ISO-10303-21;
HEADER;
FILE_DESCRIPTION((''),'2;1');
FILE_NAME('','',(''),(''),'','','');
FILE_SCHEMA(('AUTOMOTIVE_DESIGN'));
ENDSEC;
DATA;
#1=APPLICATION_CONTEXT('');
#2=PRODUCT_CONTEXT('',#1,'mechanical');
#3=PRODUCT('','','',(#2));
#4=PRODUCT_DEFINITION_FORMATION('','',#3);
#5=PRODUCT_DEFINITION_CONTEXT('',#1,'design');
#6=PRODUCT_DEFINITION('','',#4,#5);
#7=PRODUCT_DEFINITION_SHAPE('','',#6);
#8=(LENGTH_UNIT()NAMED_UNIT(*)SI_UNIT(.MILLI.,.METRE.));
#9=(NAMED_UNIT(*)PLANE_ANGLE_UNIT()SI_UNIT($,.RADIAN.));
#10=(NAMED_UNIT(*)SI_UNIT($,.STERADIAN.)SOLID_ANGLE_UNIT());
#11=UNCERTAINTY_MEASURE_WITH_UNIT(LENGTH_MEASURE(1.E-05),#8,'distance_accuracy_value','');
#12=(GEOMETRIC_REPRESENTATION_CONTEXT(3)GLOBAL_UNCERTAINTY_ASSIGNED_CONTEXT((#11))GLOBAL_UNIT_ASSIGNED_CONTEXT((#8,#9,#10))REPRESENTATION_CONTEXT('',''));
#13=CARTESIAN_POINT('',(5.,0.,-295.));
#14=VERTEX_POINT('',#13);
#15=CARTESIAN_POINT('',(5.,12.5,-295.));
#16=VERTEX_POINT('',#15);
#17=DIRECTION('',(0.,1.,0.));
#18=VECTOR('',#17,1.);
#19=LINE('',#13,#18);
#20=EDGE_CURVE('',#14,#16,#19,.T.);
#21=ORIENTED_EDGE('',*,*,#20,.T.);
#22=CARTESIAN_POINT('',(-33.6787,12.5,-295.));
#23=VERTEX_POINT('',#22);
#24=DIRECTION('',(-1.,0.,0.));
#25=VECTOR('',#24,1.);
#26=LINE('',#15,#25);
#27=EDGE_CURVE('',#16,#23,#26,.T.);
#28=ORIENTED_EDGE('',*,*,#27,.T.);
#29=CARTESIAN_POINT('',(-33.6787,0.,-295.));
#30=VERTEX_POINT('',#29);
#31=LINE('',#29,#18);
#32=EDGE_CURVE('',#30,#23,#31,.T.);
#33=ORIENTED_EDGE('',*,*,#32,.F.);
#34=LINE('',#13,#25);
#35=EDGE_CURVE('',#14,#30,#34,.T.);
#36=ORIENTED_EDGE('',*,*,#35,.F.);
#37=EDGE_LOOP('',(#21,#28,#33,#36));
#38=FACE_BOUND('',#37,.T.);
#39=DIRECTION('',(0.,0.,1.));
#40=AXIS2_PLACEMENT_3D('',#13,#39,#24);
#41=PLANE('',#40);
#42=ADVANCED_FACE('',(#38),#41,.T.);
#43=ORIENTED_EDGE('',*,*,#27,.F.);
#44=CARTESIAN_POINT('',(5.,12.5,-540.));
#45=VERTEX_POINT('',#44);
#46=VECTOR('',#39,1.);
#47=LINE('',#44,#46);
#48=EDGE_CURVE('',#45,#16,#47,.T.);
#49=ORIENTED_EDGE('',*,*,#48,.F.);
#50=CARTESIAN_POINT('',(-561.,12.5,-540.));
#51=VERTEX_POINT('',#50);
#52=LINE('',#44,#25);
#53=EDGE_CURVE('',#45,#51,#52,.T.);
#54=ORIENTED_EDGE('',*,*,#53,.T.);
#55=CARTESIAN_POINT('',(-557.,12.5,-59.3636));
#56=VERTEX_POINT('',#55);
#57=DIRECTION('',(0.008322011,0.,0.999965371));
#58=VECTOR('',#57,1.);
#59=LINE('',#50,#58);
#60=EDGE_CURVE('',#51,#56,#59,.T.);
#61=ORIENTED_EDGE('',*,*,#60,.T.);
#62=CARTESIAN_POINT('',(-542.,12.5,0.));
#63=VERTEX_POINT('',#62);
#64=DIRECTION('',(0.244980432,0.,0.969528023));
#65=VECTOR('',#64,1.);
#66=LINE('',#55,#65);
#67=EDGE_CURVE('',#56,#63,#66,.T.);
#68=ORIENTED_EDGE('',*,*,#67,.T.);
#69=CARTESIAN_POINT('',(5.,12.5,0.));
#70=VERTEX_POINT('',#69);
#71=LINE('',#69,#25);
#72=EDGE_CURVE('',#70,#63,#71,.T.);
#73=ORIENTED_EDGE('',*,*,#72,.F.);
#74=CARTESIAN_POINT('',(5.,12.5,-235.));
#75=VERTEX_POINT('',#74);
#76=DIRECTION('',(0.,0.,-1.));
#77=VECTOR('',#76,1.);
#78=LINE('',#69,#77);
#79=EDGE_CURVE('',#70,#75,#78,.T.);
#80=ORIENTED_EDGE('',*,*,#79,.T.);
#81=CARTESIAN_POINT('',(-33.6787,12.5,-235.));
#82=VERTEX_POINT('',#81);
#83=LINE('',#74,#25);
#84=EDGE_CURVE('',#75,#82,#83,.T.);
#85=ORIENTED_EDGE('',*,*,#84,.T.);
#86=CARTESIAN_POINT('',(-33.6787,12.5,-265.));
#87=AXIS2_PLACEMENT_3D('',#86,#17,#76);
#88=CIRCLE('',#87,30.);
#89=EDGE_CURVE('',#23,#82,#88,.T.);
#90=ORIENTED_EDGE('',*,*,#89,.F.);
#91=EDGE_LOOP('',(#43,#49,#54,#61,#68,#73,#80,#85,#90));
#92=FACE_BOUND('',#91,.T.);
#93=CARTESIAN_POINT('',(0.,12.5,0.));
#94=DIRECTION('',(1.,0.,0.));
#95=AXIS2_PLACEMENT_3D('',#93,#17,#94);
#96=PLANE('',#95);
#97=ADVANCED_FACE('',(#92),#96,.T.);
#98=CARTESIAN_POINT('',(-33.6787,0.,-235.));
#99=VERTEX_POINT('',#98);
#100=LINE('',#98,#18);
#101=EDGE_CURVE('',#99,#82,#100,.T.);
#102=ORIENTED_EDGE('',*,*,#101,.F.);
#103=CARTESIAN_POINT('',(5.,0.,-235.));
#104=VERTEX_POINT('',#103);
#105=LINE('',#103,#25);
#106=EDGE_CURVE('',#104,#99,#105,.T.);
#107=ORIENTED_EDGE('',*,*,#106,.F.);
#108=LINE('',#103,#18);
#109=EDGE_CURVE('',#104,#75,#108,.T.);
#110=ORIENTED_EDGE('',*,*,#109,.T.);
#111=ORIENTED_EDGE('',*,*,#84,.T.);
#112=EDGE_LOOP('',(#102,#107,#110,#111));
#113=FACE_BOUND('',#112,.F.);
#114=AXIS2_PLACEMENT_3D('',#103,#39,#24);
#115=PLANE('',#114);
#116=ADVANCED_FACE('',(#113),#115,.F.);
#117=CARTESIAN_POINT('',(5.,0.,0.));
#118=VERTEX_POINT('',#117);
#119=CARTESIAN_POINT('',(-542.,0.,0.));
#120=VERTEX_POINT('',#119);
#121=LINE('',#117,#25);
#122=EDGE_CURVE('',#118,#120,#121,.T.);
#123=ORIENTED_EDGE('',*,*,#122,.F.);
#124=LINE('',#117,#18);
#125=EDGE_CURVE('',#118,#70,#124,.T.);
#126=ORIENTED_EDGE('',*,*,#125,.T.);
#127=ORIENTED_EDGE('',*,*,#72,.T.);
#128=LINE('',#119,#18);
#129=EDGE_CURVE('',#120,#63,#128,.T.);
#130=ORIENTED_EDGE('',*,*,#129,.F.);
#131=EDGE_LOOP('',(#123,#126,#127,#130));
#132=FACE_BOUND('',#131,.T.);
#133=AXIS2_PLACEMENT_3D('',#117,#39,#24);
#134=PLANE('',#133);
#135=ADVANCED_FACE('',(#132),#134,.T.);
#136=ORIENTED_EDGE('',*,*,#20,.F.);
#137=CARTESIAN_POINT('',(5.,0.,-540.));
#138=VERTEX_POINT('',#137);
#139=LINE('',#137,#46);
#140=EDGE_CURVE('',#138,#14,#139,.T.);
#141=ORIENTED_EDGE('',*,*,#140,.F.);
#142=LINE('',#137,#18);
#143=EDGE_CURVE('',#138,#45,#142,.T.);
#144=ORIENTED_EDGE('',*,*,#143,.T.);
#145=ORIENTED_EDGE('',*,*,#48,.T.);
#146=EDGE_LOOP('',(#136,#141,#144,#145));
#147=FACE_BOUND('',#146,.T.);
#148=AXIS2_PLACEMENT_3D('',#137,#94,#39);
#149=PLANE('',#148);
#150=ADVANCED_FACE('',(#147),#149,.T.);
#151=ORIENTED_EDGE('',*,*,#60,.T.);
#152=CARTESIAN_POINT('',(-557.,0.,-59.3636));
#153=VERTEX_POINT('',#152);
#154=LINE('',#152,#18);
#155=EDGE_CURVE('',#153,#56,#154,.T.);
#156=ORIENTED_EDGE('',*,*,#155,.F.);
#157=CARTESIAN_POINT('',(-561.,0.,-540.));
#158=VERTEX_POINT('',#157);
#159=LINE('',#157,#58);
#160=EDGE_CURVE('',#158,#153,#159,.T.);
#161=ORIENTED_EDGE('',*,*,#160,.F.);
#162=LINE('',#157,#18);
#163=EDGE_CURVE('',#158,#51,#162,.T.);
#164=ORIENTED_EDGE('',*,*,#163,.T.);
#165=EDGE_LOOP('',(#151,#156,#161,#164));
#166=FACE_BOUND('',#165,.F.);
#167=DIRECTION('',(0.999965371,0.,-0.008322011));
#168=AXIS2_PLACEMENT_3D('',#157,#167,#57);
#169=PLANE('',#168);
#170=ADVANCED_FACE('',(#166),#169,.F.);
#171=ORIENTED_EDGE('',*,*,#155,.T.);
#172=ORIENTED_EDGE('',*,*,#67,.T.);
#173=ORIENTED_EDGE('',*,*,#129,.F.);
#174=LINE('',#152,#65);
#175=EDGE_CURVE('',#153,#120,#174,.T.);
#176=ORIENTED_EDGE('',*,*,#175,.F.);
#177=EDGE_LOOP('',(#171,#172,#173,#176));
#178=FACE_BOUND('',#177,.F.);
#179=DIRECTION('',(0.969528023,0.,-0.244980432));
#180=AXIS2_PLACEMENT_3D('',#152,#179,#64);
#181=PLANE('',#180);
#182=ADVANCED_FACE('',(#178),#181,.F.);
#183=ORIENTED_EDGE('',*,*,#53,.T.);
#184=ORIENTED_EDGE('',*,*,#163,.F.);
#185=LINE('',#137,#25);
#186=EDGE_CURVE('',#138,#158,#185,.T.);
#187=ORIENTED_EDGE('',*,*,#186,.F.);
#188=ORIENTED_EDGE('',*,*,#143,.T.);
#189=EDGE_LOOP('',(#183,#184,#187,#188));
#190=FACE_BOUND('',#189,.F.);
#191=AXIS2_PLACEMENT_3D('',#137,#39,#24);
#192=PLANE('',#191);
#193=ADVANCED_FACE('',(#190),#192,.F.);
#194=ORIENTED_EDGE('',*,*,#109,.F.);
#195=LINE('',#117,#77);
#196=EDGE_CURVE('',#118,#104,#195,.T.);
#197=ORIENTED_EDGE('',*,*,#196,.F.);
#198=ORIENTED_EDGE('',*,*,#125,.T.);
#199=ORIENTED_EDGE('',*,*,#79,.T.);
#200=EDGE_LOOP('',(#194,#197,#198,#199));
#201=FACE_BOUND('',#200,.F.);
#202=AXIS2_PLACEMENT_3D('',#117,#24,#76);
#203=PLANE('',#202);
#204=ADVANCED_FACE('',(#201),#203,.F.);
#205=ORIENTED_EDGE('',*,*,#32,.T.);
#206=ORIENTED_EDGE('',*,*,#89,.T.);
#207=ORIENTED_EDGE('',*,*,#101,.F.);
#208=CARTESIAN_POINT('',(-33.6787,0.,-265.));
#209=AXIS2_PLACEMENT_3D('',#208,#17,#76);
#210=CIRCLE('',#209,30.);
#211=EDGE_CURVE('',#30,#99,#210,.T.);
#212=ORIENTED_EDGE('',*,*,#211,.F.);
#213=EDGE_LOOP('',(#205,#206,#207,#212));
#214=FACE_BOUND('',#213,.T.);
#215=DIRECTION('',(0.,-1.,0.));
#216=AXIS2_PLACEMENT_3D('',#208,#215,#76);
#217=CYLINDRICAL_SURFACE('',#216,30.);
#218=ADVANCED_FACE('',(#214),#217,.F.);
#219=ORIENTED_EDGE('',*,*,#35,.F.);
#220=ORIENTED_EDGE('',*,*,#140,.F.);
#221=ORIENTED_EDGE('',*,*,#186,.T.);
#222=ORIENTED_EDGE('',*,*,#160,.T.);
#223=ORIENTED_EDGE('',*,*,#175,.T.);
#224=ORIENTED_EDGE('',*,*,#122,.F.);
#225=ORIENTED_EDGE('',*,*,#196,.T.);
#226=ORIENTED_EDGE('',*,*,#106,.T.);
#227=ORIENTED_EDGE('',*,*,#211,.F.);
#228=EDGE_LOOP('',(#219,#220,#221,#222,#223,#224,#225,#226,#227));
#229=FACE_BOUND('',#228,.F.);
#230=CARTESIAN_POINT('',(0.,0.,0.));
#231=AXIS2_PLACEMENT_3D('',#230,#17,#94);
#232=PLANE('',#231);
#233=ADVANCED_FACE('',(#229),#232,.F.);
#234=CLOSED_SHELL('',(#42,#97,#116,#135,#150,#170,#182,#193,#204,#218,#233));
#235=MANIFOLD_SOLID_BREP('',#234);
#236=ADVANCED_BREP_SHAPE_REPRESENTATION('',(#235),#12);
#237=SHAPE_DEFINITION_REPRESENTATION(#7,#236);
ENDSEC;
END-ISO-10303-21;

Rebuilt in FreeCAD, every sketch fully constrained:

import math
import FreeCAD as App
import Part
import Sketcher
from FreeCAD import Vector
Q = App.Units.Quantity

doc = App.newDocument("Part")
body = doc.addObject("PartDesign::Body", "Body")

sketch1 = doc.addObject("Sketcher::SketchObject", "Sketch")
body.addObject(sketch1)
sketch1.AttachmentSupport = (doc.XZ_Plane, [""])
sketch1.MapMode = "FlatFace"
sketch1.addGeometry([
    Part.LineSegment(Vector(-542, 0, 0), Vector(5, 0, 0)),
    Part.LineSegment(Vector(5, 0, 0), Vector(5, -235, 0)),
    Part.LineSegment(Vector(5, -235, 0), Vector(-34, -235, 0)),
    Part.ArcOfCircle(Part.Circle(Vector(-34, -265, 0), Vector(0, 0, 1), 30), math.radians(90), math.radians(270)),
    Part.LineSegment(Vector(-34, -295, 0), Vector(5, -295, 0)),
    Part.LineSegment(Vector(5, -295, 0), Vector(5, -540, 0)),
    Part.LineSegment(Vector(5, -540, 0), Vector(-561, -540, 0)),
    Part.LineSegment(Vector(-561, -540, 0), Vector(-557, -59, 0)),
    Part.LineSegment(Vector(-557, -59, 0), Vector(-542, 0, 0)),
], False)
sketch1.addConstraint([
    Sketcher.Constraint("Coincident", 0, 2, 1, 1),
    Sketcher.Constraint("Coincident", 1, 2, 2, 1),
    Sketcher.Constraint("Tangent", 2, 2, 3, 1),
    Sketcher.Constraint("Tangent", 3, 2, 4, 1),
    Sketcher.Constraint("Coincident", 4, 2, 5, 1),
    Sketcher.Constraint("Coincident", 5, 2, 6, 1),
    Sketcher.Constraint("Coincident", 6, 2, 7, 1),
    Sketcher.Constraint("Coincident", 7, 2, 8, 1),
    Sketcher.Constraint("Coincident", 8, 2, 0, 1),
    Sketcher.Constraint("Horizontal", 0),
    Sketcher.Constraint("Vertical", 1),
    Sketcher.Constraint("Horizontal", 2),
    Sketcher.Constraint("Horizontal", 4),
    Sketcher.Constraint("Vertical", 5),
    Sketcher.Constraint("Horizontal", 6),
    Sketcher.Constraint("PointOnObject", 0, 2, -1),
    Sketcher.Constraint("Vertical", 1, 2, 4, 2),
    Sketcher.Constraint("Radius", 3, 30.0),
    Sketcher.Constraint("DistanceX", 0, 1, 0, 2, 547.0),
    Sketcher.Constraint("DistanceX", 6, 2, 6, 1, 566.0),
    Sketcher.Constraint("DistanceY", 5, 2, 5, 1, 245.0),
    Sketcher.Constraint("DistanceY", 5, 2, -1, 1, 540.0),
    Sketcher.Constraint("DistanceX", 7, 2, 0, 2, 562.0),
    Sketcher.Constraint("DistanceX", -1, 1, 0, 2, 5.0),
    Sketcher.Constraint("Angle", 8, Q("75.8193 deg")),
    Sketcher.Constraint("DistanceX", 2, 2, 2, 1, 38.6787),
])
pad1 = doc.addObject("PartDesign::Pad", "Pad")
body.addObject(pad1)
pad1.Profile = sketch1
pad1.Length = 12.5
pad1.Reversed = True

doc.recompute()
